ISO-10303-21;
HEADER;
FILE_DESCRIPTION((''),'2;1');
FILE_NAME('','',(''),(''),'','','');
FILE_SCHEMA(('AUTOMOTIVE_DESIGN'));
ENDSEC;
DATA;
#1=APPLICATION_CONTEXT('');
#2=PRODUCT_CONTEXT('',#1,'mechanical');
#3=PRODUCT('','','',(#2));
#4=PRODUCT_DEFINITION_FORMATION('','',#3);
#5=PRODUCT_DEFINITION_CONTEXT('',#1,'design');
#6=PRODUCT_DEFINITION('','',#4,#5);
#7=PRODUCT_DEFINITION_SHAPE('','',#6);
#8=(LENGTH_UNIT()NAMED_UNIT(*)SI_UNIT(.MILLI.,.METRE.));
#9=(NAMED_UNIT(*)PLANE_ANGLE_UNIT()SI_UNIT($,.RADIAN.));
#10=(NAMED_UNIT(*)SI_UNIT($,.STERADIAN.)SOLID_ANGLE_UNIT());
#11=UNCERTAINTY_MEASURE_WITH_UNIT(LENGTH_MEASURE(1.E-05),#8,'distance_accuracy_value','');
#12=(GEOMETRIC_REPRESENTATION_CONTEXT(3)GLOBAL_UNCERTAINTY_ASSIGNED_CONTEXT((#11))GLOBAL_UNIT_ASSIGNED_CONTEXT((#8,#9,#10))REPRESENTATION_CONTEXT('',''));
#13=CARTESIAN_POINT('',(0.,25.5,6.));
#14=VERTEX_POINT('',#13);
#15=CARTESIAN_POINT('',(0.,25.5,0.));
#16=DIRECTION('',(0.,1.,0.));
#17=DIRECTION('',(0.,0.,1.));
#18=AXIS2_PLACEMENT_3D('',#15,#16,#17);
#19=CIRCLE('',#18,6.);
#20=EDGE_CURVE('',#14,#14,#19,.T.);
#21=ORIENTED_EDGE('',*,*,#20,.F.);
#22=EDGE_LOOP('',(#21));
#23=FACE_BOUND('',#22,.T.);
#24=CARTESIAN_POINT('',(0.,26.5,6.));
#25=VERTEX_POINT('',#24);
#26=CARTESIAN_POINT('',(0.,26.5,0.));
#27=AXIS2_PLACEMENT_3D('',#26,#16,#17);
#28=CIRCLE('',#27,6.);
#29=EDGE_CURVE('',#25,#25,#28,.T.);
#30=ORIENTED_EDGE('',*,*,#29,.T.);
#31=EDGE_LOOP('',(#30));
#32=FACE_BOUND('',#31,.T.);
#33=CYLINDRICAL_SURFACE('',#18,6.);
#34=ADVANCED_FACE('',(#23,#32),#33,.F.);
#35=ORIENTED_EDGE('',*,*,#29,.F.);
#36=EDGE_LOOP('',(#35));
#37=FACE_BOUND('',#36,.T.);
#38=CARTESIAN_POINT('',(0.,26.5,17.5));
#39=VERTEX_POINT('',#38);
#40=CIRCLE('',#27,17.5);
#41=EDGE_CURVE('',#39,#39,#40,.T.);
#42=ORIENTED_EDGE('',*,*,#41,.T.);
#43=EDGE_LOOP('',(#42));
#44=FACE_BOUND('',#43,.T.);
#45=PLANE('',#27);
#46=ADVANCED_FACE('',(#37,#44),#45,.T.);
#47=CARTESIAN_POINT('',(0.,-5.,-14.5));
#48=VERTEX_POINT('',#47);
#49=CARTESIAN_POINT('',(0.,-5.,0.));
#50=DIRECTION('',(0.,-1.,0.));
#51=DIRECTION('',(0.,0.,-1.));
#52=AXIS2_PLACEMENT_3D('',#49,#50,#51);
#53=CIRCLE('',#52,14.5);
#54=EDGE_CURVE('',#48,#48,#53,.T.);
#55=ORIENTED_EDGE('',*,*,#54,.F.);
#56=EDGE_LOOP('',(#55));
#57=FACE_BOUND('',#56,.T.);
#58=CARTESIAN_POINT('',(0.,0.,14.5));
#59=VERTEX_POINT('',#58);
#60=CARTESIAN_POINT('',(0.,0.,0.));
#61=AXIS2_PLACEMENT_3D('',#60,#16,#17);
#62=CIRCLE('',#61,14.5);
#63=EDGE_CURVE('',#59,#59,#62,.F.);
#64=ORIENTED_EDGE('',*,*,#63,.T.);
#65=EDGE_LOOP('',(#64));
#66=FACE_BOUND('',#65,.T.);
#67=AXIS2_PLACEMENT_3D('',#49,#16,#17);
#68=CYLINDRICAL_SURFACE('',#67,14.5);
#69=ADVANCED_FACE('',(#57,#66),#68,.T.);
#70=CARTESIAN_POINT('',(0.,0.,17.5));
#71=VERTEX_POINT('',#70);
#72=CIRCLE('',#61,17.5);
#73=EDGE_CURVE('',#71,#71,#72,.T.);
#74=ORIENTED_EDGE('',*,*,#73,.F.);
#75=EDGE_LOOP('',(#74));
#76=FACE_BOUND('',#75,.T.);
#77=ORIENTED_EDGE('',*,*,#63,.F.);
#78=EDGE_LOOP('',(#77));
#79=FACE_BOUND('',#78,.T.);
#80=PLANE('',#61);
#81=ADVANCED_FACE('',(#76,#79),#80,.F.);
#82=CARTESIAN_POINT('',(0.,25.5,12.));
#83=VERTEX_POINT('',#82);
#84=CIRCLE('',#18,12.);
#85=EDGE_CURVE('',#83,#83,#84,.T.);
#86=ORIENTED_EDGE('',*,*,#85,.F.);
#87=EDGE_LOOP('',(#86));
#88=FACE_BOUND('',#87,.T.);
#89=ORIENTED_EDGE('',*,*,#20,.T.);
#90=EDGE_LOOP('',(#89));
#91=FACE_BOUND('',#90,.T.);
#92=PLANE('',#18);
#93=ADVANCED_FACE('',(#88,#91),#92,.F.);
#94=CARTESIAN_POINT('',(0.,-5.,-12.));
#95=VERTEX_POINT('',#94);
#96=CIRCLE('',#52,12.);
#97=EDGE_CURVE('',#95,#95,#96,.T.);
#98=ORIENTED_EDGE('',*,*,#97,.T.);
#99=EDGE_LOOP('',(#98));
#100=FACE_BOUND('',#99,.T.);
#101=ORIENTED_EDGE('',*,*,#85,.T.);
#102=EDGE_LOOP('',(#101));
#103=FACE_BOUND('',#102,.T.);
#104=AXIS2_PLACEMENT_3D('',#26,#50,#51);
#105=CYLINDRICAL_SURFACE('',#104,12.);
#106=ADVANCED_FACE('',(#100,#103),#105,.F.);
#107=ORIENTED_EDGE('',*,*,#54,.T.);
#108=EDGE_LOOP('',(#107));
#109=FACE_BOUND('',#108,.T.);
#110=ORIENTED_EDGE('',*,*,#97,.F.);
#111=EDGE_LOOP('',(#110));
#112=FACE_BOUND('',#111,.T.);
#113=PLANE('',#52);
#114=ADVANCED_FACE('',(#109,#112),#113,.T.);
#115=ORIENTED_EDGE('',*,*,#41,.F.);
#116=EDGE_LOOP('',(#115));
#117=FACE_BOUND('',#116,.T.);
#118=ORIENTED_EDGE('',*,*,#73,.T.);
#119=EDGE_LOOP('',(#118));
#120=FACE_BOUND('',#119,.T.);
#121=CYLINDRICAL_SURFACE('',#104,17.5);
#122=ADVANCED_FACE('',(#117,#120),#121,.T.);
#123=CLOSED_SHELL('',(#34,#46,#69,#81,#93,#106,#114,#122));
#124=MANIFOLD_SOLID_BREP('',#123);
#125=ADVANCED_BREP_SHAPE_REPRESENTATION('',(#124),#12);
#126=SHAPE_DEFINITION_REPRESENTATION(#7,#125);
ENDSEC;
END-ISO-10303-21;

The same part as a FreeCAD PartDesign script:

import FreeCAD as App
import Part
import Sketcher

V = App.Vector
Q = App.Units.Quantity

doc = App.newDocument("Part")
body = doc.addObject("PartDesign::Body", "Body")

# Sketch on XZ plane
sketch1 = doc.addObject("Sketcher::SketchObject", "Sketch")
body.addObject(sketch1)
sketch1.AttachmentSupport = (doc.XZ_Plane, [""])
sketch1.MapMode = "FlatFace"
sketch1.addGeometry(Part.Circle(V(0, 0, 0), V(0, 0, 1), 18), False)
sketch1.addGeometry(Part.Circle(V(0, 0, 0), V(0, 0, 1), 12), False)
sketch1.addConstraint(Sketcher.Constraint("Coincident", 0, 3, -1, 1))
sketch1.addConstraint(Sketcher.Constraint("Coincident", 1, 3, -1, 1))
sketch1.addConstraint(Sketcher.Constraint("Diameter", 0, Q("35 mm")))
sketch1.addConstraint(Sketcher.Constraint("Diameter", 1, Q("24 mm")))
pad1 = doc.addObject("PartDesign::Pad", "Pad")
body.addObject(pad1)
pad1.Profile = sketch1
pad1.Length = 26.5
pad1.Reversed = True

# Sketch on XZ plane
sketch2 = doc.addObject("Sketcher::SketchObject", "Sketch001")
body.addObject(sketch2)
sketch2.AttachmentSupport = (doc.XZ_Plane, [""])
sketch2.MapMode = "FlatFace"
sketch2.AttachmentOffset = App.Placement(V(0, 0, -26.5), App.Rotation())
sketch2.addGeometry(Part.Circle(V(0, 0, 0), V(0, 0, 1), 12), False)
sketch2.addGeometry(Part.Circle(V(0, 0, 0), V(0, 0, 1), 6), False)
sketch2.addConstraint(Sketcher.Constraint("Coincident", 0, 3, -1, 1))
sketch2.addConstraint(Sketcher.Constraint("Coincident", 1, 3, -1, 1))
sketch2.addConstraint(Sketcher.Constraint("Diameter", 0, Q("24 mm")))
sketch2.addConstraint(Sketcher.Constraint("Diameter", 1, Q("12 mm")))
pad2 = doc.addObject("PartDesign::Pad", "Pad001")
body.addObject(pad2)
pad2.Profile = sketch2
pad2.Length = 1

# Sketch on XZ plane
sketch3 = doc.addObject("Sketcher::SketchObject", "Sketch002")
body.addObject(sketch3)
sketch3.AttachmentSupport = (doc.XZ_Plane, [""])
sketch3.MapMode = "FlatFace"
sketch3.addGeometry(Part.Circle(V(0, 0, 0), V(0, 0, 1), 14), False)
sketch3.addGeometry(Part.Circle(V(0, 0, 0), V(0, 0, 1), 12), False)
sketch3.addConstraint(Sketcher.Constraint("Coincident", 0, 3, -1, 1))
sketch3.addConstraint(Sketcher.Constraint("Coincident", 1, 3, -1, 1))
sketch3.addConstraint(Sketcher.Constraint("Diameter", 0, Q("29 mm")))
sketch3.addConstraint(Sketcher.Constraint("Diameter", 1, Q("24 mm")))
pad3 = doc.addObject("PartDesign::Pad", "Pad002")
body.addObject(pad3)
pad3.Profile = sketch3
pad3.Length = 5

doc.recompute()
